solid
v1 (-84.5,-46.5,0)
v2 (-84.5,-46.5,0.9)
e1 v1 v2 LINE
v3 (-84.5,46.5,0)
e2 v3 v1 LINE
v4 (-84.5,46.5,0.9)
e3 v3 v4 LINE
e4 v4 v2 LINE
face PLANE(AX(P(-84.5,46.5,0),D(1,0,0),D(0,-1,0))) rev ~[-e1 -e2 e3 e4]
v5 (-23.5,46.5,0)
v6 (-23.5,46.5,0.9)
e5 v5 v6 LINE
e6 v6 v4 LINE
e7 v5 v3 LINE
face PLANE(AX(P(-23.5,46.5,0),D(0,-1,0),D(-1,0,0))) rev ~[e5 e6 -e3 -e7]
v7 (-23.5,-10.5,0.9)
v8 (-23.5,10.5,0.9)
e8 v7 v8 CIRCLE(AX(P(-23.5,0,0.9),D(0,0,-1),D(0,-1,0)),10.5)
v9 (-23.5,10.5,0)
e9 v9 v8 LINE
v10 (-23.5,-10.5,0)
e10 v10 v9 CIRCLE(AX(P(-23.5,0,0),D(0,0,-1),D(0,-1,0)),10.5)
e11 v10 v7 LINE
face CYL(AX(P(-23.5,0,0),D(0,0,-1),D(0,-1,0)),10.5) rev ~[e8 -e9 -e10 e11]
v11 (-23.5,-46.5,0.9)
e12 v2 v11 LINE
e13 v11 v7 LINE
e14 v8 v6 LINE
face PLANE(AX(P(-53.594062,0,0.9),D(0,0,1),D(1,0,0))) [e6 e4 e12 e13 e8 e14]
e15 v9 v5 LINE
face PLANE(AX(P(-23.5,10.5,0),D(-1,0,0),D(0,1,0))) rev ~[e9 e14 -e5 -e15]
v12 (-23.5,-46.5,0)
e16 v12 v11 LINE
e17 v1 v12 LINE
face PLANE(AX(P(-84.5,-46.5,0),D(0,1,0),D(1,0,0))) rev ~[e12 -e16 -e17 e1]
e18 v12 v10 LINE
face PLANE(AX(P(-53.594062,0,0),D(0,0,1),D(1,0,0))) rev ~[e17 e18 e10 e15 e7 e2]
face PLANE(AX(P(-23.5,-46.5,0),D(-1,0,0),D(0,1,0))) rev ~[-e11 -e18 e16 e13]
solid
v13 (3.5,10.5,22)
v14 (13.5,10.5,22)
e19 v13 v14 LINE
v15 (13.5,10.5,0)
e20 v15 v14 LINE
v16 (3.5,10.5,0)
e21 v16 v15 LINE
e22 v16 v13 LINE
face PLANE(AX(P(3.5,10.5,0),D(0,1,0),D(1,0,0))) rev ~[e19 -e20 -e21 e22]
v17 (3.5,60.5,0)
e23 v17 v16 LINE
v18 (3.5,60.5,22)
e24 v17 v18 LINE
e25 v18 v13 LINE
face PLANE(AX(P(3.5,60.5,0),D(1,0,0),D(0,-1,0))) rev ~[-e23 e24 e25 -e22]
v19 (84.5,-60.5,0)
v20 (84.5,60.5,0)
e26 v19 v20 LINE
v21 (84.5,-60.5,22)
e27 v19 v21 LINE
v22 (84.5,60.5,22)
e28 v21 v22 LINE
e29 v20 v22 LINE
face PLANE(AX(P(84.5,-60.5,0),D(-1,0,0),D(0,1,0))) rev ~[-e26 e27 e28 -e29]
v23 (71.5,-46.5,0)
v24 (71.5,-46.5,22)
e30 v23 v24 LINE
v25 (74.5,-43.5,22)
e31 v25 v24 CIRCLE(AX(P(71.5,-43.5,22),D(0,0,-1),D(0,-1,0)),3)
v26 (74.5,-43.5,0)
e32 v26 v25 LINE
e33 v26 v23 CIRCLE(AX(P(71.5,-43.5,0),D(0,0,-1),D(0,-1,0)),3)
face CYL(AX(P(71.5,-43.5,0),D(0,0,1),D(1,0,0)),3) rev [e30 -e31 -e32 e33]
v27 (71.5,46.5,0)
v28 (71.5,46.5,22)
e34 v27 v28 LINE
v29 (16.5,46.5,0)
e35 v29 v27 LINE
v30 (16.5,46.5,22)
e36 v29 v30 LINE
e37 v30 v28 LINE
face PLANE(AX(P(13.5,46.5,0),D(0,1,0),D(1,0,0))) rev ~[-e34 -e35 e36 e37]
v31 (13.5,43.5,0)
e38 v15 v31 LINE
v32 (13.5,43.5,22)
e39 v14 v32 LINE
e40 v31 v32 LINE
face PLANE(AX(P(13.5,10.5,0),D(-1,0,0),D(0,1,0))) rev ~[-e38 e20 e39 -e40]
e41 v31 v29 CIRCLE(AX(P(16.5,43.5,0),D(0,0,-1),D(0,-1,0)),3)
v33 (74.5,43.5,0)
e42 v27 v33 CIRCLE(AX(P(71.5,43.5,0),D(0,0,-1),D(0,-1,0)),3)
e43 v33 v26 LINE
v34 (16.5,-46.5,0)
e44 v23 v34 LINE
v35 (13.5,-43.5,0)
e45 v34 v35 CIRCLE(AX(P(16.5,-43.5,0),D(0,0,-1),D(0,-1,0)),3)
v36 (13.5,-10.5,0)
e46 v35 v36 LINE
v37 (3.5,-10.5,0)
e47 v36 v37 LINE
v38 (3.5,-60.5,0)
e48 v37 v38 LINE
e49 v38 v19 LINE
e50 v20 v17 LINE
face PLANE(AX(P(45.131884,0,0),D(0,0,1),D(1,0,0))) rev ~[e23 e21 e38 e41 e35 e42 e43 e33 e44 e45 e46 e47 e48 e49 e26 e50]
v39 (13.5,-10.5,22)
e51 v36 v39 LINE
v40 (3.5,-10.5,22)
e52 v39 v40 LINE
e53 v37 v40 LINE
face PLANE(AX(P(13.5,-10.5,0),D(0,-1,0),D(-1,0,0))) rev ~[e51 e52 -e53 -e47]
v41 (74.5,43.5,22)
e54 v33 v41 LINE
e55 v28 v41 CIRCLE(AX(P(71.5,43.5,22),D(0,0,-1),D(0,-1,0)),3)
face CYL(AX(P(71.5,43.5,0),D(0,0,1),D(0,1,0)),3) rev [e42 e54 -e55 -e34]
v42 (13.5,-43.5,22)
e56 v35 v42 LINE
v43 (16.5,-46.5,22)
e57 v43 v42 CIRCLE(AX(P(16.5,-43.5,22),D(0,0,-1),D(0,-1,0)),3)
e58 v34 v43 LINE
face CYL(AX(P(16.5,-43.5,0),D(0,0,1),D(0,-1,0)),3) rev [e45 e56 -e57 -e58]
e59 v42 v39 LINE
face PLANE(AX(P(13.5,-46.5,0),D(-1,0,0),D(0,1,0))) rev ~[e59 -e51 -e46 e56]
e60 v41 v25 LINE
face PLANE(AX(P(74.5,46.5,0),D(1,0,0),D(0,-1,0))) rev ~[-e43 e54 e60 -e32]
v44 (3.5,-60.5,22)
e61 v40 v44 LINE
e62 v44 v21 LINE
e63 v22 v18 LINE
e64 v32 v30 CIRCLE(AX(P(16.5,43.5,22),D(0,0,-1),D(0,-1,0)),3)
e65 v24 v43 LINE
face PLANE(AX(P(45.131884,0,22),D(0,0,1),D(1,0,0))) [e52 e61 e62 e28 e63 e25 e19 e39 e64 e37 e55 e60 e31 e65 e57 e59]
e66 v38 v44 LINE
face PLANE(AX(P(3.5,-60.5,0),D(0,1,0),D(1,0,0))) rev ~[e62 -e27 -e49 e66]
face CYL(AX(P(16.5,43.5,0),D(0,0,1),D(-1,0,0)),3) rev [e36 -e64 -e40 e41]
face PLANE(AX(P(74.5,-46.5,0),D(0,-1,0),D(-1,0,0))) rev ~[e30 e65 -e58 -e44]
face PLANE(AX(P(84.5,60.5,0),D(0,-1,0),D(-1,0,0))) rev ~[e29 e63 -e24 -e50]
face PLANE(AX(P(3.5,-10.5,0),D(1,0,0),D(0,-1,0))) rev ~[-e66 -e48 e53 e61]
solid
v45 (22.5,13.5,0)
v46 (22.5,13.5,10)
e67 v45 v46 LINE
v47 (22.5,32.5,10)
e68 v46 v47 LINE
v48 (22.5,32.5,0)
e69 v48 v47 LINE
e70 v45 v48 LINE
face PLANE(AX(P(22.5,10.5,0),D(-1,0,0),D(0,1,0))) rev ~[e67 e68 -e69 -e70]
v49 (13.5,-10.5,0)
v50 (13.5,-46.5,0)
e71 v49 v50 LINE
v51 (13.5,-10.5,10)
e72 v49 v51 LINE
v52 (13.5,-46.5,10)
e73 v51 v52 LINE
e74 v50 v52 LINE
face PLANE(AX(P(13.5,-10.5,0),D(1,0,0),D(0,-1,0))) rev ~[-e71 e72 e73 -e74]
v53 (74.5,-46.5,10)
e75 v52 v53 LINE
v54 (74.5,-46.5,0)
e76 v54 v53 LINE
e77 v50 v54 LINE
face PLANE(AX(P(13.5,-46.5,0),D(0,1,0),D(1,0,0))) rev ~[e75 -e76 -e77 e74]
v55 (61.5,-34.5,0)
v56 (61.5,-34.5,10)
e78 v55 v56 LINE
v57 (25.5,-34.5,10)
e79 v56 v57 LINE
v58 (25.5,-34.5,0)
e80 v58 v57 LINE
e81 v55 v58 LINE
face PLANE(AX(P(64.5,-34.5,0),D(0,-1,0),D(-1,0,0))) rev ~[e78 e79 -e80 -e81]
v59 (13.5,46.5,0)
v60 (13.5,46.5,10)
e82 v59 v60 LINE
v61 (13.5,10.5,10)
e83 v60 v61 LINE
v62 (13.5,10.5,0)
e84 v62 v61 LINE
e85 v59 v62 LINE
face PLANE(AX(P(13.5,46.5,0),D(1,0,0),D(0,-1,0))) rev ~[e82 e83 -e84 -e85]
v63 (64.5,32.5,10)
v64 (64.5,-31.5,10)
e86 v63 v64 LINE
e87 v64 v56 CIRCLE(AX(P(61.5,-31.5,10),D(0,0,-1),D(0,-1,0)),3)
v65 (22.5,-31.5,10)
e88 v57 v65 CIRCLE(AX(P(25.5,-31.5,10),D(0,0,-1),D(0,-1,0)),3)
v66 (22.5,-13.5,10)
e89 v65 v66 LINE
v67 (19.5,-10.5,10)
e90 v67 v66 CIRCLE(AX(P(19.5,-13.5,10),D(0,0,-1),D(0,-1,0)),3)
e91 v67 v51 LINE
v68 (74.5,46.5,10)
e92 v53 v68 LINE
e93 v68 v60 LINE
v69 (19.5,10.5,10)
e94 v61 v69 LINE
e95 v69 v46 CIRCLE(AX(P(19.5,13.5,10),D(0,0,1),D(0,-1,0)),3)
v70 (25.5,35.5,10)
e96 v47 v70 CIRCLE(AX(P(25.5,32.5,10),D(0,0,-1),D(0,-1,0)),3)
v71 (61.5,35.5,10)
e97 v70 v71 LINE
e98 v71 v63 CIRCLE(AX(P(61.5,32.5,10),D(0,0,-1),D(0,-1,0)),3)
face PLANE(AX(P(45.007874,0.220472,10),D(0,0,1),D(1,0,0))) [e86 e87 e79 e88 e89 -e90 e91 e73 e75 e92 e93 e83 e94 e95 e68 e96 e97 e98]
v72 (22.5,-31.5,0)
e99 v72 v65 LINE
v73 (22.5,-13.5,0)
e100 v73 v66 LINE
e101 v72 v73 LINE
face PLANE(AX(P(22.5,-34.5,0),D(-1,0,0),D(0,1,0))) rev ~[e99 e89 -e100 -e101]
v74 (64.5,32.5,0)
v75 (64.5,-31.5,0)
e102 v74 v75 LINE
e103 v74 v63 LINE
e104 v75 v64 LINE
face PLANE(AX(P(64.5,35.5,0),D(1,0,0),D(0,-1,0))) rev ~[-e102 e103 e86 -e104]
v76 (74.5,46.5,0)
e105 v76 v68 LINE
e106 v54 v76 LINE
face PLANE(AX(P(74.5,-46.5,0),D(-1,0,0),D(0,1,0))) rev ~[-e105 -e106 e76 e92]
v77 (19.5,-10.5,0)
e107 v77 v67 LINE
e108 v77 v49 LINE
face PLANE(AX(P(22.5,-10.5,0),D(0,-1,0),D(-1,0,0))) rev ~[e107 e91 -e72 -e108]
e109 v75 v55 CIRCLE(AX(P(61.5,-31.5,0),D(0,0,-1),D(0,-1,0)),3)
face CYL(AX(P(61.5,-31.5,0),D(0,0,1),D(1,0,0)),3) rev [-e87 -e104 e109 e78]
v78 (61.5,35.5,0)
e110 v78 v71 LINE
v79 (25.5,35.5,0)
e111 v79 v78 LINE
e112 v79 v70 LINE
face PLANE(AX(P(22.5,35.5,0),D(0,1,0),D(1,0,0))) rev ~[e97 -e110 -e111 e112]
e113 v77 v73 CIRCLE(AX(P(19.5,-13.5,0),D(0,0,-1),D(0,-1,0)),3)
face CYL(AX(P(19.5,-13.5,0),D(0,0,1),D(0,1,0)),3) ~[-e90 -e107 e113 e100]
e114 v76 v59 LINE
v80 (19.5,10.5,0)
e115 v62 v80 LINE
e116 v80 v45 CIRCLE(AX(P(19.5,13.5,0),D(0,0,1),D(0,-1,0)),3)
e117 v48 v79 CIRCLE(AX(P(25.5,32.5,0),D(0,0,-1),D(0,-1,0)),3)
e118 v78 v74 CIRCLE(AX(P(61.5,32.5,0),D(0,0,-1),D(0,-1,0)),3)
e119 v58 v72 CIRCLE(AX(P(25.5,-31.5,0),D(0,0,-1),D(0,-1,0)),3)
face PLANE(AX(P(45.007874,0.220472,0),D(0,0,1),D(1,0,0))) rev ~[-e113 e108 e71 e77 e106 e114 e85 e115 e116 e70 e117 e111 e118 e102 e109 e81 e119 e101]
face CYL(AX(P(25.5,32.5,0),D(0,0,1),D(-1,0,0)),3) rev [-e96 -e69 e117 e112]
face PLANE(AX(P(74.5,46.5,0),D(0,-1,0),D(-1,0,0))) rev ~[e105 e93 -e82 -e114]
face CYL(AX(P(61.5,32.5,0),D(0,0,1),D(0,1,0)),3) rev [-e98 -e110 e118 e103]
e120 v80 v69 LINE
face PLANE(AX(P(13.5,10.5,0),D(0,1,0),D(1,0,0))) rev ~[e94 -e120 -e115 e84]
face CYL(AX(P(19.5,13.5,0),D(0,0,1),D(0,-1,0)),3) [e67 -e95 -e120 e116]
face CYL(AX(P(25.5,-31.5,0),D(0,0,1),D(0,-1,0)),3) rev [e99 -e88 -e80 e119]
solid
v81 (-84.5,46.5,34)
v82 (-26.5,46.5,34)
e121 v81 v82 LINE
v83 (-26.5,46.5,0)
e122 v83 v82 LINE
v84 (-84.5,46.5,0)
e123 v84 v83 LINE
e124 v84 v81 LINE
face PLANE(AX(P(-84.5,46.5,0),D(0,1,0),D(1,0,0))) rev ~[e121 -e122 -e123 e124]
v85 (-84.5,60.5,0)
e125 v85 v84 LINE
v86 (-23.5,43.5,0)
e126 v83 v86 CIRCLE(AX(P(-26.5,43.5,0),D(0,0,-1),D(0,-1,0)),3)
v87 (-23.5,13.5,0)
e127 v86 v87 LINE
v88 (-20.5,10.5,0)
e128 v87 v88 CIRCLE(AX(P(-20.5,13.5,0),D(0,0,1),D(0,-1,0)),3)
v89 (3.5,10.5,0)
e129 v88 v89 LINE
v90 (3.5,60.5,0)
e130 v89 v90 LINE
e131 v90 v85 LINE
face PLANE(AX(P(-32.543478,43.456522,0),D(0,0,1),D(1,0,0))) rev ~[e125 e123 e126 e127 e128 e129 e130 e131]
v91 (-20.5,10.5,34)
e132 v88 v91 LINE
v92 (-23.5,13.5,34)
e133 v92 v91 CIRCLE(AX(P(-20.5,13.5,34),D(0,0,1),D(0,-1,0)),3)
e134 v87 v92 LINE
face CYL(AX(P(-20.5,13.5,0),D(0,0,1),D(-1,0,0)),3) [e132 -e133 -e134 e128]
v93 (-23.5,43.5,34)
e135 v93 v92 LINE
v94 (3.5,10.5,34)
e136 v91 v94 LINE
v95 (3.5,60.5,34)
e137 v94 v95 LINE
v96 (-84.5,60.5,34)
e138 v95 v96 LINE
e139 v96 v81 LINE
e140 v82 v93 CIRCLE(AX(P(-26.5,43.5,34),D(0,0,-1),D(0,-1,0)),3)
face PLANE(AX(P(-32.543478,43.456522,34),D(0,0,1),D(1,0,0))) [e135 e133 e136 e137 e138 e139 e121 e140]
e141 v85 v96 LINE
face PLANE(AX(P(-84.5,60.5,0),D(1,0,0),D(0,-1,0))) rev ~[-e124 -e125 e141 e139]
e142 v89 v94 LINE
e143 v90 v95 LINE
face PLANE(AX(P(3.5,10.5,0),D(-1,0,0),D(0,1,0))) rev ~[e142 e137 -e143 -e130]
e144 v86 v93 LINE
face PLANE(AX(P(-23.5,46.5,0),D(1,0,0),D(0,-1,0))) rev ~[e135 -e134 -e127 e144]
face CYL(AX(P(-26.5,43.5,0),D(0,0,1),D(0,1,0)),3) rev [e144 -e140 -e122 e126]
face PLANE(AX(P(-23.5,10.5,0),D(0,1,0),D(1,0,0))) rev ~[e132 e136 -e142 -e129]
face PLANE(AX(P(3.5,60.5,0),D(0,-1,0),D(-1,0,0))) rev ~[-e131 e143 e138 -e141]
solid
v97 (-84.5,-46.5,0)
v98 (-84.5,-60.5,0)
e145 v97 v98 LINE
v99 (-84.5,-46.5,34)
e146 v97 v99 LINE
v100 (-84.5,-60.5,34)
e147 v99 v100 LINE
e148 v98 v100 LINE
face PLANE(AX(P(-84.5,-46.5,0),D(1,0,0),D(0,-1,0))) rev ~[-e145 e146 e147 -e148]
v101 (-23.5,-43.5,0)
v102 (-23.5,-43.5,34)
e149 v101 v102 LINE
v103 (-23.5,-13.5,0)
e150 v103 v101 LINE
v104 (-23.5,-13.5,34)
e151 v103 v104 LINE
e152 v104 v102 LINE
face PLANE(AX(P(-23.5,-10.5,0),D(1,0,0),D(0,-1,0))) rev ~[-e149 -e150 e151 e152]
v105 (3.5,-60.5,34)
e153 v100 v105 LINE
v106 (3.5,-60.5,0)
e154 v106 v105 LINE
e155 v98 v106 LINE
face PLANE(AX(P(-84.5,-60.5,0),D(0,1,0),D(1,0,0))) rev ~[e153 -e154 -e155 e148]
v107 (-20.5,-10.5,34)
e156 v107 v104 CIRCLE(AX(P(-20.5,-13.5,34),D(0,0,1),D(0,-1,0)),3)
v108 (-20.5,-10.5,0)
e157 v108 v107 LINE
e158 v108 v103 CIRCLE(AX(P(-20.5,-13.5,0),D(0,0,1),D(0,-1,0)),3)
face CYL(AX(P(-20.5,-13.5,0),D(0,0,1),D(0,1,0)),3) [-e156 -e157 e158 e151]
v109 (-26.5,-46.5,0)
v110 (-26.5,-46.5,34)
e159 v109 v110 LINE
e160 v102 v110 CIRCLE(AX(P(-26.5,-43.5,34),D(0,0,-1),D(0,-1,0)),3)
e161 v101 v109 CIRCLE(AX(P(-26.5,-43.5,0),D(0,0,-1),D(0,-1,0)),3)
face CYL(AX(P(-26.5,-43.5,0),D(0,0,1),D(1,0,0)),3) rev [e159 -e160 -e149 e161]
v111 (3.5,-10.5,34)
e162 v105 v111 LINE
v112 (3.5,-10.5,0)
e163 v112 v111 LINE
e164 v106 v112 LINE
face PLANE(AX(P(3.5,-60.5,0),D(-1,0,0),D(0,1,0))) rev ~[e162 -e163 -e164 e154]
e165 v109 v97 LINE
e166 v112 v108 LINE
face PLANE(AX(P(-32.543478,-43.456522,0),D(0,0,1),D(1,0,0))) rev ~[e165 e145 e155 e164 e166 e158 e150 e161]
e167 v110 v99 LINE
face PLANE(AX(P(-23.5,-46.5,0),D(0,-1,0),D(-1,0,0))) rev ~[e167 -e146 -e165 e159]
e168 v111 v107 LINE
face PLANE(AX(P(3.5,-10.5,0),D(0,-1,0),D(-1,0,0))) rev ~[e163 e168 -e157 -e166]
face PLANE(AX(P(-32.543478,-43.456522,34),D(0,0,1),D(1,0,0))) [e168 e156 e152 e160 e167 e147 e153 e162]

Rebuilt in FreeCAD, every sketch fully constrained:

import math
import FreeCAD as App
import Part
import Sketcher
Q = App.Units.Quantity


def edges_at(feature, points):
    """Names of the edges that pass closest to the given points."""
    edges = feature.Shape.Edges
    near = lambda p: min(range(len(edges)), key=lambda i: edges[i].distToShape(Part.Vertex(*p))[0])
    return sorted({f"Edge{near(p) + 1}" for p in points})


def add_polygon(sketch, points):
    """Adds a closed chain of lines whose ends are joined by coincident constraints."""
    first, n = sketch.GeometryCount, len(points)
    for a, b in zip(points, points[1:] + points[:1]):
        sketch.addGeometry(Part.LineSegment(App.Vector(*a, 0), App.Vector(*b, 0)), False)
    for i in range(n):
        sketch.addConstraint(Sketcher.Constraint("Coincident", first + i, 2, first + (i + 1) % n, 1))

doc = App.newDocument("Part")
body = doc.addObject("PartDesign::Body", "Body")

# Sketch on XY plane
sketch1 = body.newObject("Sketcher::SketchObject", "Sketch")
sketch1.AttachmentSupport = (doc.getObject("XY_Plane"), [""])
sketch1.MapMode = "FlatFace"
add_polygon(sketch1, [(4, 10), (4, 60), (-84, 60), (-84, 46), (-24, 46), (-24, 10)])  # lines 0-5
sketch1.addConstraint(Sketcher.Constraint("Vertical", 0))
sketch1.addConstraint(Sketcher.Constraint("Horizontal", 1))
sketch1.addConstraint(Sketcher.Constraint("Vertical", 2))
sketch1.addConstraint(Sketcher.Constraint("Horizontal", 3))
sketch1.addConstraint(Sketcher.Constraint("Vertical", 4))
sketch1.addConstraint(Sketcher.Constraint("Horizontal", 5))
sketch1.addConstraint(Sketcher.Constraint("DistanceX", 1, 2, 1, 1, Q("88 mm")))
sketch1.addConstraint(Sketcher.Constraint("DistanceX", 3, 1, 3, 2, Q("61 mm")))
sketch1.addConstraint(Sketcher.Constraint("DistanceY", 0, 1, 0, 2, Q("50 mm")))
sketch1.addConstraint(Sketcher.Constraint("DistanceY", 2, 2, 2, 1, Q("14 mm")))
sketch1.addConstraint(Sketcher.Constraint("DistanceX", -1, 1, 0, 2, Q("3.5 mm")))
sketch1.addConstraint(Sketcher.Constraint("DistanceY", -1, 1, 0, 2, Q("60.5 mm")))
pad1 = body.newObject("PartDesign::Pad", "Pad")
pad1.Profile = sketch1
pad1.Length = 34
doc.recompute()

fillet = body.newObject("PartDesign::Fillet", "Fillet")
fillet.Base = (pad1, edges_at(pad1, [(-23.5, 46.5, 17), (-23.5, 10.5, 17)]))
fillet.Radius = 3
body2 = doc.addObject("PartDesign::Body", "Body001")

# Sketch on XY plane
sketch2 = body2.newObject("Sketcher::SketchObject", "Sketch001")
sketch2.AttachmentSupport = (doc.getObject("XY_Plane001"), [""])
sketch2.MapMode = "FlatFace"
add_polygon(sketch2, [(-84, -60), (4, -60), (4, -10), (-24, -10), (-24, -46), (-84, -46)])  # lines 0-5
sketch2.addConstraint(Sketcher.Constraint("Horizontal", 0))
sketch2.addConstraint(Sketcher.Constraint("Vertical", 1))
sketch2.addConstraint(Sketcher.Constraint("Horizontal", 2))
sketch2.addConstraint(Sketcher.Constraint("Vertical", 3))
sketch2.addConstraint(Sketcher.Constraint("Horizontal", 4))
sketch2.addConstraint(Sketcher.Constraint("Vertical", 5))
sketch2.addConstraint(Sketcher.Constraint("DistanceX", 0, 1, 0, 2, Q("88 mm")))
sketch2.addConstraint(Sketcher.Constraint("DistanceX", 2, 2, 2, 1, Q("27 mm")))
sketch2.addConstraint(Sketcher.Constraint("DistanceY", 1, 1, 1, 2, Q("50 mm")))
sketch2.addConstraint(Sketcher.Constraint("DistanceY", 3, 2, 3, 1, Q("36 mm")))
sketch2.addConstraint(Sketcher.Constraint("DistanceX", -1, 1, 0, 2, Q("3.5 mm")))
sketch2.addConstraint(Sketcher.Constraint("DistanceY", 0, 2, -1, 1, Q("60.5 mm")))
pad2 = body2.newObject("PartDesign::Pad", "Pad001")
pad2.Profile = sketch2
pad2.Length = 34
doc.recompute()

fillet2 = body2.newObject("PartDesign::Fillet", "Fillet001")
fillet2.Base = (pad2, edges_at(pad2, [(-23.5, -46.5, 17), (-23.5, -10.5, 17)]))
fillet2.Radius = 3
body3 = doc.addObject("PartDesign::Body", "Body002")

# Sketch on XY plane
sketch3 = body3.newObject("Sketcher::SketchObject", "Sketch002")
sketch3.AttachmentSupport = (doc.getObject("XY_Plane002"), [""])
sketch3.MapMode = "FlatFace"
sketch3.addGeometry(Part.LineSegment(App.Vector(-84, 46, 0), App.Vector(-84, -46, 0)), False)
sketch3.addGeometry(Part.LineSegment(App.Vector(-84, -46, 0), App.Vector(-24, -46, 0)), False)
sketch3.addGeometry(Part.LineSegment(App.Vector(-24, -46, 0), App.Vector(-24, -10, 0)), False)
sketch3.addGeometry(Part.ArcOfCircle(Part.Circle(App.Vector(-24, 0, 0), App.Vector(0, 0, 1), 10), math.radians(90), math.radians(270)), False)
sketch3.addGeometry(Part.LineSegment(App.Vector(-24, 10, 0), App.Vector(-24, 46, 0)), False)
sketch3.addGeometry(Part.LineSegment(App.Vector(-24, 46, 0), App.Vector(-84, 46, 0)), False)
sketch3.addConstraint(Sketcher.Constraint("Coincident", 0, 2, 1, 1))
sketch3.addConstraint(Sketcher.Constraint("Coincident", 1, 2, 2, 1))
sketch3.addConstraint(Sketcher.Constraint("Coincident", 2, 2, 3, 2))
sketch3.addConstraint(Sketcher.Constraint("Coincident", 3, 1, 4, 1))
sketch3.addConstraint(Sketcher.Constraint("Coincident", 4, 2, 5, 1))
sketch3.addConstraint(Sketcher.Constraint("Coincident", 5, 2, 0, 1))
sketch3.addConstraint(Sketcher.Constraint("Vertical", 0))
sketch3.addConstraint(Sketcher.Constraint("Horizontal", 1))
sketch3.addConstraint(Sketcher.Constraint("Vertical", 2))
sketch3.addConstraint(Sketcher.Constraint("Vertical", 4))
sketch3.addConstraint(Sketcher.Constraint("Horizontal", 5))
sketch3.addConstraint(Sketcher.Constraint("Symmetric", 2, 2, 3, 1, -1))
sketch3.addConstraint(Sketcher.Constraint("Vertical", 3, 3, 1, 2))
sketch3.addConstraint(Sketcher.Constraint("Equal", 2, 4))
sketch3.addConstraint(Sketcher.Constraint("Radius", 3, Q("10.5 mm")))
sketch3.addConstraint(Sketcher.Constraint("DistanceX", 1, 1, 1, 2, Q("61 mm")))
sketch3.addConstraint(Sketcher.Constraint("DistanceY", 0, 2, 0, 1, Q("93 mm")))
sketch3.addConstraint(Sketcher.Constraint("DistanceX", 3, 3, -1, 1, Q("23.5 mm")))
pad3 = body3.newObject("PartDesign::Pad", "Pad002")
pad3.Profile = sketch3
pad3.Length = 0.9
body4 = doc.addObject("PartDesign::Body", "Body003")

# Sketch on XY plane
sketch4 = body4.newObject("Sketcher::SketchObject", "Sketch003")
sketch4.AttachmentSupport = (doc.getObject("XY_Plane003"), [""])
sketch4.MapMode = "FlatFace"
add_polygon(sketch4, [(22, -10), (14, -10), (14, -46), (74, -46), (74, 46), (14, 46), (14, 10), (22, 10), (22, 36), (64, 36), (64, -34), (22, -34)])  # lines 0-11
sketch4.addConstraint(Sketcher.Constraint("Horizontal", 0))
sketch4.addConstraint(Sketcher.Constraint("Vertical", 1))
sketch4.addConstraint(Sketcher.Constraint("Horizontal", 2))
sketch4.addConstraint(Sketcher.Constraint("Vertical", 3))
sketch4.addConstraint(Sketcher.Constraint("Horizontal", 4))
sketch4.addConstraint(Sketcher.Constraint("Vertical", 5))
sketch4.addConstraint(Sketcher.Constraint("Horizontal", 6))
sketch4.addConstraint(Sketcher.Constraint("Vertical", 7))
sketch4.addConstraint(Sketcher.Constraint("Horizontal", 8))
sketch4.addConstraint(Sketcher.Constraint("Vertical", 9))
sketch4.addConstraint(Sketcher.Constraint("Horizontal", 10))
sketch4.addConstraint(Sketcher.Constraint("Vertical", 11))
sketch4.addConstraint(Sketcher.Constraint("Symmetric", 1, 2, 4, 2, -1))
sketch4.addConstraint(Sketcher.Constraint("Symmetric", 6, 2, 11, 2, -1))
sketch4.addConstraint(Sketcher.Constraint("DistanceX", 0, 2, 0, 1, Q("9 mm")))
sketch4.addConstraint(Sketcher.Constraint("DistanceX", 2, 1, 2, 2, Q("61 mm")))
sketch4.addConstraint(Sketcher.Constraint("DistanceX", 8, 1, 8, 2, Q("42 mm")))
sketch4.addConstraint(Sketcher.Constraint("DistanceY", 1, 2, 1, 1, Q("36 mm")))
sketch4.addConstraint(Sketcher.Constraint("DistanceY", 3, 1, 3, 2, Q("93 mm")))
sketch4.addConstraint(Sketcher.Constraint("DistanceY", 7, 1, 7, 2, Q("25 mm")))
sketch4.addConstraint(Sketcher.Constraint("DistanceY", 9, 2, 9, 1, Q("70 mm")))
sketch4.addConstraint(Sketcher.Constraint("DistanceX", -1, 1, 0, 2, Q("13.5 mm")))
pad4 = body4.newObject("PartDesign::Pad", "Pad003")
pad4.Profile = sketch4
pad4.Length = 10
doc.recompute()

fillet3 = body4.newObject("PartDesign::Fillet", "Fillet002")
fillet3.Base = (pad4, edges_at(pad4, [
    (22.5, 35.5, 5),
    (64.5, 35.5, 5),
    (22.5, -34.5, 5),
    (64.5, -34.5, 5),
    (22.5, 10.5, 5),
    (22.5, -10.5, 5),
]))
fillet3.Radius = 3
body5 = doc.addObject("PartDesign::Body", "Body004")

# Sketch on XY plane
sketch5 = body5.newObject("Sketcher::SketchObject", "Sketch004")
sketch5.AttachmentSupport = (doc.getObject("XY_Plane004"), [""])
sketch5.MapMode = "FlatFace"
add_polygon(sketch5, [(4, -60), (84, -60), (84, 60), (4, 60), (4, 10), (14, 10), (14, 46), (74, 46), (74, -46), (14, -46), (14, -10), (4, -10)])  # lines 0-11
sketch5.addConstraint(Sketcher.Constraint("Horizontal", 0))
sketch5.addConstraint(Sketcher.Constraint("Vertical", 1))
sketch5.addConstraint(Sketcher.Constraint("Horizontal", 2))
sketch5.addConstraint(Sketcher.Constraint("Vertical", 3))
sketch5.addConstraint(Sketcher.Constraint("Horizontal", 4))
sketch5.addConstraint(Sketcher.Constraint("Vertical", 5))
sketch5.addConstraint(Sketcher.Constraint("Horizontal", 6))
sketch5.addConstraint(Sketcher.Constraint("Vertical", 7))
sketch5.addConstraint(Sketcher.Constraint("Horizontal", 8))
sketch5.addConstraint(Sketcher.Constraint("Vertical", 9))
sketch5.addConstraint(Sketcher.Constraint("Horizontal", 10))
sketch5.addConstraint(Sketcher.Constraint("Vertical", 11))
sketch5.addConstraint(Sketcher.Constraint("Symmetric", 5, 2, 8, 2, -1))
sketch5.addConstraint(Sketcher.Constraint("Symmetric", 3, 2, 10, 2, -1))
sketch5.addConstraint(Sketcher.Constraint("Equal", 3, 11))
sketch5.addConstraint(Sketcher.Constraint("DistanceX", 0, 1, 0, 2, Q("81 mm")))
sketch5.addConstraint(Sketcher.Constraint("DistanceX", 4, 1, 4, 2, Q("10 mm")))
sketch5.addConstraint(Sketcher.Constraint("DistanceX", 6, 1, 6, 2, Q("61 mm")))
sketch5.addConstraint(Sketcher.Constraint("DistanceY", 1, 1, 1, 2, Q("121 mm")))
sketch5.addConstraint(Sketcher.Constraint("DistanceY", 3, 2, 3, 1, Q("50 mm")))
sketch5.addConstraint(Sketcher.Constraint("DistanceY", 5, 1, 5, 2, Q("36 mm")))
sketch5.addConstraint(Sketcher.Constraint("DistanceX", -1, 1, 0, 2, Q("84.5 mm")))
pad5 = body5.newObject("PartDesign::Pad", "Pad004")
pad5.Profile = sketch5
pad5.Length = 22
doc.recompute()

fillet4 = body5.newObject("PartDesign::Fillet", "Fillet003")
fillet4.Base = (pad5, edges_at(pad5, [
    (13.5, 46.5, 11),
    (74.5, 46.5, 11),
    (13.5, -46.5, 11),
    (74.5, -46.5, 11),
]))
fillet4.Radius = 3

doc.recompute()
